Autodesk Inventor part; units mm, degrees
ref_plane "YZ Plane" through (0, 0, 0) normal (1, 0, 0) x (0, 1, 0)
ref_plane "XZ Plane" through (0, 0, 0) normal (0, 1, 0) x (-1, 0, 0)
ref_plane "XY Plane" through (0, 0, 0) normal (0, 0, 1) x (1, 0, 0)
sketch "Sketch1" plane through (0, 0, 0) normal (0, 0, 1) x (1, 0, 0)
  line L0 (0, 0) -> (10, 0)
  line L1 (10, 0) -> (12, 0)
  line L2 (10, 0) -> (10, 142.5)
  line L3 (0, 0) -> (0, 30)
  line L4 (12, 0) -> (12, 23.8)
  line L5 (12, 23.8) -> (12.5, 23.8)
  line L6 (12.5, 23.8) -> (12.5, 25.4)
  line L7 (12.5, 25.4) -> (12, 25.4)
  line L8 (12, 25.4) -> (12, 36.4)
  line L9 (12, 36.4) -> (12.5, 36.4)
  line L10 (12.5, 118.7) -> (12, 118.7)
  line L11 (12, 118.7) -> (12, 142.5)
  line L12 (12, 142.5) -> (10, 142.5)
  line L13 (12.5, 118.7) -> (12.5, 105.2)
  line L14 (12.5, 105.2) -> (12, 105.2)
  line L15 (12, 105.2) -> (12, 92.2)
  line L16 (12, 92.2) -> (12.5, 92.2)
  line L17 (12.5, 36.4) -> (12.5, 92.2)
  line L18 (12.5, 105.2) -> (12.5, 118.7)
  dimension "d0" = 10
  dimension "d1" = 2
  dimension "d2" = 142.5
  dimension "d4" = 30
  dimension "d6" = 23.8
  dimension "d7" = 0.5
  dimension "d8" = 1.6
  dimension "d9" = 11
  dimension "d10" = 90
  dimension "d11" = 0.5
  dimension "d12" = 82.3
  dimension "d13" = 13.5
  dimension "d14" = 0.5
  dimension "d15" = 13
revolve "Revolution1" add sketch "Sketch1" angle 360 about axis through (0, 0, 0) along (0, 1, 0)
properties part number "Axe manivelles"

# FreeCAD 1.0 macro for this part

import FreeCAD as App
import Part
import Sketcher

V = App.Vector

doc = App.newDocument("Part")
body = doc.addObject("PartDesign::Body", "Body")

# Sketch on XY plane
sketch1 = doc.addObject("Sketcher::SketchObject", "Sketch")
body.addObject(sketch1)
sketch1.AttachmentSupport = (doc.XY_Plane, [""])
sketch1.MapMode = "FlatFace"
sketch1.addGeometry([
    Part.LineSegment(V(10, 142.5, 0), V(10, 0, 0)),  # 0
    Part.LineSegment(V(10, 0, 0), V(12, 0, 0)),  # 1
    Part.LineSegment(V(12, 0, 0), V(12, 23.8, 0)),  # 2
    Part.LineSegment(V(12, 23.8, 0), V(12.5, 23.8, 0)),  # 3
    Part.LineSegment(V(12.5, 23.8, 0), V(12.5, 25.4, 0)),  # 4
    Part.LineSegment(V(12.5, 25.4, 0), V(12, 25.4, 0)),  # 5
    Part.LineSegment(V(12, 25.4, 0), V(12, 36.4, 0)),  # 6
    Part.LineSegment(V(12, 36.4, 0), V(12.5, 36.4, 0)),  # 7
    Part.LineSegment(V(12.5, 36.4, 0), V(12.5, 92.2, 0)),  # 8
    Part.LineSegment(V(12.5, 92.2, 0), V(12, 92.2, 0)),  # 9
    Part.LineSegment(V(12, 92.2, 0), V(12, 105.2, 0)),  # 10
    Part.LineSegment(V(12, 105.2, 0), V(12.5, 105.2, 0)),  # 11
    Part.LineSegment(V(12.5, 105.2, 0), V(12.5, 118.7, 0)),  # 12
    Part.LineSegment(V(12.5, 118.7, 0), V(12, 118.7, 0)),  # 13
    Part.LineSegment(V(12, 118.7, 0), V(12, 142.5, 0)),  # 14
    Part.LineSegment(V(12, 142.5, 0), V(10, 142.5, 0)),  # 15
], False)
sketch1.addConstraint([
    Sketcher.Constraint("Coincident", 0, 2, 1, 1),
    Sketcher.Constraint("Coincident", 1, 2, 2, 1),
    Sketcher.Constraint("Coincident", 2, 2, 3, 1),
    Sketcher.Constraint("Coincident", 3, 2, 4, 1),
    Sketcher.Constraint("Coincident", 4, 2, 5, 1),
    Sketcher.Constraint("Coincident", 5, 2, 6, 1),
    Sketcher.Constraint("Coincident", 6, 2, 7, 1),
    Sketcher.Constraint("Coincident", 7, 2, 8, 1),
    Sketcher.Constraint("Coincident", 8, 2, 9, 1),
    Sketcher.Constraint("Coincident", 9, 2, 10, 1),
    Sketcher.Constraint("Coincident", 10, 2, 11, 1),
    Sketcher.Constraint("Coincident", 11, 2, 12, 1),
    Sketcher.Constraint("Coincident", 12, 2, 13, 1),
    Sketcher.Constraint("Coincident", 13, 2, 14, 1),
    Sketcher.Constraint("Coincident", 14, 2, 15, 1),
    Sketcher.Constraint("Coincident", 15, 2, 0, 1),
    Sketcher.Constraint("Vertical", 0),
    Sketcher.Constraint("Horizontal", 1),
    Sketcher.Constraint("Vertical", 2),
    Sketcher.Constraint("Horizontal", 3),
    Sketcher.Constraint("Vertical", 4),
    Sketcher.Constraint("Horizontal", 5),
    Sketcher.Constraint("Vertical", 6),
    Sketcher.Constraint("Horizontal", 7),
    Sketcher.Constraint("Vertical", 8),
    Sketcher.Constraint("Horizontal", 9),
    Sketcher.Constraint("Vertical", 10),
    Sketcher.Constraint("Horizontal", 11),
    Sketcher.Constraint("Vertical", 12),
    Sketcher.Constraint("Horizontal", 13),
    Sketcher.Constraint("Vertical", 14),
    Sketcher.Constraint("Horizontal", 15),
    Sketcher.Constraint("PointOnObject", 0, 2, -1),
    Sketcher.Constraint("Vertical", 2, 2, 5, 2),
    Sketcher.Constraint("Vertical", 4, 2, 7, 2),
    Sketcher.Constraint("Vertical", 6, 2, 9, 2),
    Sketcher.Constraint("Vertical", 8, 2, 11, 2),
    Sketcher.Constraint("Vertical", 10, 2, 13, 2),
    Sketcher.Constraint("Equal", 2, 14),
    Sketcher.Constraint("DistanceX", 1, 1, 1, 2, 2.0),
    Sketcher.Constraint("DistanceY", 6, 1, 6, 2, 11.0),
    Sketcher.Constraint("DistanceY", 10, 1, 10, 2, 13.0),
    Sketcher.Constraint("DistanceX", 3, 1, 3, 2, 0.5),
    Sketcher.Constraint("DistanceY", 0, 2, 0, 1, 142.5),
    Sketcher.Constraint("DistanceY", 2, 1, 2, 2, 23.8),
    Sketcher.Constraint("DistanceY", 4, 1, 4, 2, 1.6),
    Sketcher.Constraint("DistanceY", 12, 1, 12, 2, 13.5),
    Sketcher.Constraint("DistanceX", -1, 1, 0, 2, 10.0),
])
revolution = doc.addObject("PartDesign::Revolution", "Revolution")
body.addObject(revolution)
revolution.Profile = sketch1
revolution.ReferenceAxis = (sketch1, ["V_Axis"])
revolution.Angle = 360

doc.recompute()
